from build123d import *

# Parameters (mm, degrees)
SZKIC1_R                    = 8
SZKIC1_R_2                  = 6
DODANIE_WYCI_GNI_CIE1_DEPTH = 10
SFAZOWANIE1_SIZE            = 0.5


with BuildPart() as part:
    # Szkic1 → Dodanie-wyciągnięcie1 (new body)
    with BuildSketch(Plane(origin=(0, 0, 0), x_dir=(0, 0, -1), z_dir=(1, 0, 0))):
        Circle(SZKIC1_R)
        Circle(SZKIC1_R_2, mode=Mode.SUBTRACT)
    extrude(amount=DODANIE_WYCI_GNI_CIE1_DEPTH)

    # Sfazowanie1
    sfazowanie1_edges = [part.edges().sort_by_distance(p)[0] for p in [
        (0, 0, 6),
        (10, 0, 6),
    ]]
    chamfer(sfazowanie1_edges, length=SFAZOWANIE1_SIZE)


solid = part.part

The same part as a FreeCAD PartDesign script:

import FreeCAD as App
import Part
import Sketcher
from FreeCAD import Vector


def edges_at(feature, points):
    """Names of the edges that pass closest to the given points."""
    edges = feature.Shape.Edges
    near = lambda p: min(range(len(edges)), key=lambda i: edges[i].distToShape(Part.Vertex(*p))[0])
    return sorted({f"Edge{near(p) + 1}" for p in points})

doc = App.newDocument("Part")
body = doc.addObject("PartDesign::Body", "Body")

# Sketch on YZ plane
sketch1 = body.newObject("Sketcher::SketchObject", "Sketch")
sketch1.AttachmentSupport = (doc.getObject("YZ_Plane"), [""])
sketch1.MapMode = "FlatFace"
sketch1.addGeometry(Part.Circle(Vector(0, 0, 0), Vector(0, 0, 1), 8), False)
sketch1.addGeometry(Part.Circle(Vector(0, 0, 0), Vector(0, 0, 1), 6), False)
sketch1.addConstraint(Sketcher.Constraint("Coincident", 0, 3, -1, 1))
sketch1.addConstraint(Sketcher.Constraint("Coincident", 1, 3, -1, 1))
sketch1.addConstraint(Sketcher.Constraint("Diameter", 0, 16.0))
sketch1.addConstraint(Sketcher.Constraint("Diameter", 1, 12.0))
pad1 = body.newObject("PartDesign::Pad", "Pad")
pad1.Profile = sketch1
pad1.Length = 10
doc.recompute()

chamfer = body.newObject("PartDesign::Chamfer", "Chamfer")
chamfer.Base = (pad1, edges_at(pad1, [(0, 0, 6), (10, 0, 6)]))
chamfer.Size = 0.5

doc.recompute()
